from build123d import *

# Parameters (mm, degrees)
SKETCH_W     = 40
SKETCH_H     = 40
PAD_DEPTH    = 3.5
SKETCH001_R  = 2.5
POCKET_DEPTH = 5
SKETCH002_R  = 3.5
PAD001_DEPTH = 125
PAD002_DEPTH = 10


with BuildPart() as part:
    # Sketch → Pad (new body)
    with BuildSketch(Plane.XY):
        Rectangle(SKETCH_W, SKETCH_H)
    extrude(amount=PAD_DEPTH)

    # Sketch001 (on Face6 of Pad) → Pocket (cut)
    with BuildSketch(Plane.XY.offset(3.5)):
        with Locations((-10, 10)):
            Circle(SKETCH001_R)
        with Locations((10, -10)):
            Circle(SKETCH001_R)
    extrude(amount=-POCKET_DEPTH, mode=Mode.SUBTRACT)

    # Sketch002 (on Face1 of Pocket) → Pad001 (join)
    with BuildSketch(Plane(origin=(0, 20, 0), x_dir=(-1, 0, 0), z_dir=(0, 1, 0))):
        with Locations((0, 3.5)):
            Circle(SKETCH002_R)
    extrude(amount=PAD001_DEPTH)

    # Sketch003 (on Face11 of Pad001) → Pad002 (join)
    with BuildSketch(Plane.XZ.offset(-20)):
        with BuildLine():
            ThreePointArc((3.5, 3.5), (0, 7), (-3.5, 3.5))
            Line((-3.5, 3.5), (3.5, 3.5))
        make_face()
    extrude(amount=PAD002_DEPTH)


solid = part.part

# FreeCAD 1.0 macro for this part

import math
import FreeCAD as App
import Part
import Sketcher
from FreeCAD import Vector


def add_polygon(sketch, points):
    """Adds a closed chain of lines whose ends are joined by coincident constraints."""
    first, n = sketch.GeometryCount, len(points)
    for a, b in zip(points, points[1:] + points[:1]):
        sketch.addGeometry(Part.LineSegment(App.Vector(*a, 0), App.Vector(*b, 0)), False)
    for i in range(n):
        sketch.addConstraint(Sketcher.Constraint("Coincident", first + i, 2, first + (i + 1) % n, 1))

doc = App.newDocument("Part")
body = doc.addObject("PartDesign::Body", "Body")

# Sketch on XY plane
sketch1 = doc.addObject("Sketcher::SketchObject", "Sketch")
body.addObject(sketch1)
sketch1.AttachmentSupport = (doc.XY_Plane, [""])
sketch1.MapMode = "FlatFace"
add_polygon(sketch1, [(-20, 20), (-20, -20), (20, -20), (20, 20)])  # lines 0-3
sketch1.addConstraint(Sketcher.Constraint("Vertical", 0))
sketch1.addConstraint(Sketcher.Constraint("Horizontal", 1))
sketch1.addConstraint(Sketcher.Constraint("Vertical", 2))
sketch1.addConstraint(Sketcher.Constraint("Horizontal", 3))
sketch1.addConstraint(Sketcher.Constraint("Symmetric", 0, 2, 2, 2, -1, 1))
sketch1.addConstraint(Sketcher.Constraint("Equal", 3, 0))
sketch1.addConstraint(Sketcher.Constraint("DistanceX", 1, 1, 1, 2, 40.0))
pad1 = doc.addObject("PartDesign::Pad", "Pad")
body.addObject(pad1)
pad1.Profile = sketch1
pad1.Length = 3.5

# Sketch on XY plane
sketch2 = doc.addObject("Sketcher::SketchObject", "Sketch001")
body.addObject(sketch2)
sketch2.AttachmentSupport = (doc.XY_Plane, [""])
sketch2.MapMode = "FlatFace"
sketch2.AttachmentOffset = App.Placement(Vector(0, 0, 3.5), App.Rotation())
sketch2.addGeometry(Part.Circle(Vector(-10, 10, 0), Vector(0, 0, 1), 2.5), False)
sketch2.addGeometry(Part.Circle(Vector(10, -10, 0), Vector(0, 0, 1), 2.5), False)
sketch2.addConstraint(Sketcher.Constraint("Equal", 0, 1))
sketch2.addConstraint(Sketcher.Constraint("Symmetric", 0, 3, 1, 3, -1, 1))
sketch2.addConstraint(Sketcher.Constraint("Diameter", 0, 5.0))
sketch2.addConstraint(Sketcher.Constraint("DistanceX", 0, 3, -1, 1, 10.0))
sketch2.addConstraint(Sketcher.Constraint("DistanceY", -1, 1, 0, 3, 10.0))
pocket1 = doc.addObject("PartDesign::Pocket", "Pocket")
body.addObject(pocket1)
pocket1.Profile = sketch2
pocket1.Length = 5

# Sketch on XZ plane
sketch3 = doc.addObject("Sketcher::SketchObject", "Sketch002")
body.addObject(sketch3)
sketch3.AttachmentSupport = (doc.XZ_Plane, [""])
sketch3.MapMode = "FlatFace"
sketch3.AttachmentOffset = App.Placement(Vector(0, 0, -20), App.Rotation())
sketch3.addGeometry(Part.Circle(Vector(0, 3.5, 0), Vector(0, 0, 1), 3.5), False)
sketch3.addConstraint(Sketcher.Constraint("PointOnObject", 0, 3, -2))
sketch3.addConstraint(Sketcher.Constraint("Diameter", 0, 7.0))
sketch3.addConstraint(Sketcher.Constraint("DistanceY", -1, 1, 0, 3, 3.5))
pad2 = doc.addObject("PartDesign::Pad", "Pad001")
body.addObject(pad2)
pad2.Profile = sketch3
pad2.Length = 125
pad2.Reversed = True

# Sketch on XZ plane
sketch4 = doc.addObject("Sketcher::SketchObject", "Sketch003")
body.addObject(sketch4)
sketch4.AttachmentSupport = (doc.XZ_Plane, [""])
sketch4.MapMode = "FlatFace"
sketch4.AttachmentOffset = App.Placement(Vector(0, 0, -20), App.Rotation())
sketch4.addGeometry(Part.ArcOfCircle(Part.Circle(Vector(0, 3.5, 0), Vector(0, 0, 1), 3.5), math.radians(0), math.radians(180)), False)
sketch4.addGeometry(Part.LineSegment(Vector(-3.5, 3.5, 0), Vector(3.5, 3.5, 0)), False)
sketch4.addConstraint(Sketcher.Constraint("Coincident", 0, 1, 1, 2))
sketch4.addConstraint(Sketcher.Constraint("Coincident", 1, 1, 0, 2))
sketch4.addConstraint(Sketcher.Constraint("Horizontal", 1))
sketch4.addConstraint(Sketcher.Constraint("PointOnObject", 0, 3, -2))
sketch4.addConstraint(Sketcher.Constraint("Radius", 0, 3.5))
sketch4.addConstraint(Sketcher.Constraint("DistanceY", -1, 1, 0, 3, 3.5))
sketch4.addConstraint(Sketcher.Constraint("DistanceY", -1, 1, 0, 1, 3.5))
pad3 = doc.addObject("PartDesign::Pad", "Pad002")
body.addObject(pad3)
pad3.Profile = sketch4
pad3.Length = 10

doc.recompute()
